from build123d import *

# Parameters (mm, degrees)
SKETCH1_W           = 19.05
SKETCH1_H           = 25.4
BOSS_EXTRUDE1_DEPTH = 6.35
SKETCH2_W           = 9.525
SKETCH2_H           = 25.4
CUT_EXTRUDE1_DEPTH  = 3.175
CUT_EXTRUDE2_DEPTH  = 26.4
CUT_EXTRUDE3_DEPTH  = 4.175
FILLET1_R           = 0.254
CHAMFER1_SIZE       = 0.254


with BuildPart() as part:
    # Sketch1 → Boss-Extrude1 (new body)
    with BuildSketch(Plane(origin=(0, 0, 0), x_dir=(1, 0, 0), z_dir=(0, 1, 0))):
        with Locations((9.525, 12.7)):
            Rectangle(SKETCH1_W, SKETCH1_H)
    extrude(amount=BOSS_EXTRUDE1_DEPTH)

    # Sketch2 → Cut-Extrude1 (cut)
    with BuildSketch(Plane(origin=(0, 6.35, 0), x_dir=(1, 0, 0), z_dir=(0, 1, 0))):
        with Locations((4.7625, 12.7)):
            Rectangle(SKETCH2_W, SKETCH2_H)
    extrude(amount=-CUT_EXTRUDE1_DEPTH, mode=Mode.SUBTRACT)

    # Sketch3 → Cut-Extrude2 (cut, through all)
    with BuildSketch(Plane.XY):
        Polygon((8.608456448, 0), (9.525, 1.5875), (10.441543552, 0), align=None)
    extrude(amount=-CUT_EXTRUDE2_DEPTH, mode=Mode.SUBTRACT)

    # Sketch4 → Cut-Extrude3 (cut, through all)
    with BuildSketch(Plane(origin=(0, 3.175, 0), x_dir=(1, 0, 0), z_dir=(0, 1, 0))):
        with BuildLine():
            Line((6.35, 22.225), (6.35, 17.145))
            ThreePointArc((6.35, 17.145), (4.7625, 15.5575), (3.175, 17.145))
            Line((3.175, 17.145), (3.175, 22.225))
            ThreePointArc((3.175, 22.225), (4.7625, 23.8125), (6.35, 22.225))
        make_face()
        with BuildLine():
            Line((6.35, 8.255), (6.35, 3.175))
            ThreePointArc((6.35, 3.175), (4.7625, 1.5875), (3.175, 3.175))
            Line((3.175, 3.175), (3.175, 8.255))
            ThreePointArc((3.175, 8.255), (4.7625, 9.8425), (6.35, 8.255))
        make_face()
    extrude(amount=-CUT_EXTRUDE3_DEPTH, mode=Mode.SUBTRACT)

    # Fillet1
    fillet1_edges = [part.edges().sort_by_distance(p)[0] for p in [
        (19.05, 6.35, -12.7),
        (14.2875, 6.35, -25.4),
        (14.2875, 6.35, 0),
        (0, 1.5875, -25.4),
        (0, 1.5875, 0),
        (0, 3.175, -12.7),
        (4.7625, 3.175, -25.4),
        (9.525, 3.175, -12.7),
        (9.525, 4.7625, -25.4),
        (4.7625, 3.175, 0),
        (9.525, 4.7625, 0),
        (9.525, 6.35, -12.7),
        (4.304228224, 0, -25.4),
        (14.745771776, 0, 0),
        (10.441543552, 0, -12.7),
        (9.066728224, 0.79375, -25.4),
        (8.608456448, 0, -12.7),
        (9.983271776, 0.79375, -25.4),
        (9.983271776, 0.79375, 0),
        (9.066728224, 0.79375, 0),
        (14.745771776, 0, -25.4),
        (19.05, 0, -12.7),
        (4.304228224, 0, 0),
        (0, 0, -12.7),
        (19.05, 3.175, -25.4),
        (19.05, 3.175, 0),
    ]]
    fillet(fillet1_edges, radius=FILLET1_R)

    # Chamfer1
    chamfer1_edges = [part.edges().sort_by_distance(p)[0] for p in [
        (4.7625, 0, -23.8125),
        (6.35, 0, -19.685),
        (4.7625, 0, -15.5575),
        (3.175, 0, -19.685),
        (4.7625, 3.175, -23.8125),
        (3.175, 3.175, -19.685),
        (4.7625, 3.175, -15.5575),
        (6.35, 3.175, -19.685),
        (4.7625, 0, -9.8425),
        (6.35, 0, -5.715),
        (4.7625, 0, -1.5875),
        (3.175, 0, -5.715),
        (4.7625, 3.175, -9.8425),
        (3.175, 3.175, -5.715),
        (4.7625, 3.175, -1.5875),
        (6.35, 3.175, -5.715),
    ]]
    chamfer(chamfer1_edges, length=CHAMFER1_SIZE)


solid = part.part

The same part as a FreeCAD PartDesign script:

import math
import FreeCAD as App
import Part
import Sketcher

V = App.Vector
Q = App.Units.Quantity


def edges_at(feature, points):
    """Names of the edges that pass closest to the given points."""
    edges = feature.Shape.Edges
    near = lambda p: min(range(len(edges)), key=lambda i: edges[i].distToShape(Part.Vertex(*p))[0])
    return sorted({f"Edge{near(p) + 1}" for p in points})

doc = App.newDocument("Part")
body = doc.addObject("PartDesign::Body", "Body")

# Sketch on XZ plane
sketch1 = body.newObject("Sketcher::SketchObject", "Sketch")
sketch1.AttachmentSupport = (doc.getObject("XZ_Plane"), [""])
sketch1.MapMode = "FlatFace"
sketch1.addGeometry(Part.LineSegment(V(0, -25, 0), V(0, 0, 0)), False)
sketch1.addGeometry(Part.LineSegment(V(0, 0, 0), V(19, 0, 0)), False)
sketch1.addGeometry(Part.LineSegment(V(19, 0, 0), V(19, -25, 0)), False)
sketch1.addGeometry(Part.LineSegment(V(19, -25, 0), V(0, -25, 0)), False)
sketch1.addConstraint(Sketcher.Constraint("Coincident", 0, 2, 1, 1))
sketch1.addConstraint(Sketcher.Constraint("Coincident", 1, 2, 2, 1))
sketch1.addConstraint(Sketcher.Constraint("Coincident", 2, 2, 3, 1))
sketch1.addConstraint(Sketcher.Constraint("Coincident", 3, 2, 0, 1))
sketch1.addConstraint(Sketcher.Constraint("Vertical", 0))
sketch1.addConstraint(Sketcher.Constraint("Horizontal", 1))
sketch1.addConstraint(Sketcher.Constraint("Vertical", 2))
sketch1.addConstraint(Sketcher.Constraint("Horizontal", 3))
sketch1.addConstraint(Sketcher.Constraint("Coincident", 0, 2, -1, 1))
sketch1.addConstraint(Sketcher.Constraint("DistanceY", 0, 1, 0, 2, Q("1 in")))
sketch1.addConstraint(Sketcher.Constraint("DistanceX", 1, 1, 1, 2, Q("0.75 in")))
pad1 = body.newObject("PartDesign::Pad", "Pad")
pad1.Profile = sketch1
pad1.Length = Q("0.25 in")
pad1.Reversed = True

# Sketch on XZ plane
sketch2 = body.newObject("Sketcher::SketchObject", "Sketch001")
sketch2.AttachmentSupport = (doc.getObject("XZ_Plane"), [""])
sketch2.MapMode = "FlatFace"
sketch2.AttachmentOffset = App.Placement(V(0, 0, -0.25 * 25.4), App.Rotation())
sketch2.addGeometry(Part.LineSegment(V(0, -25, 0), V(0, 0, 0)), False)
sketch2.addGeometry(Part.LineSegment(V(0, 0, 0), V(10, 0, 0)), False)
sketch2.addGeometry(Part.LineSegment(V(10, 0, 0), V(10, -25, 0)), False)
sketch2.addGeometry(Part.LineSegment(V(10, -25, 0), V(0, -25, 0)), False)
sketch2.addConstraint(Sketcher.Constraint("Coincident", 0, 2, 1, 1))
sketch2.addConstraint(Sketcher.Constraint("Coincident", 1, 2, 2, 1))
sketch2.addConstraint(Sketcher.Constraint("Coincident", 2, 2, 3, 1))
sketch2.addConstraint(Sketcher.Constraint("Coincident", 3, 2, 0, 1))
sketch2.addConstraint(Sketcher.Constraint("Vertical", 0))
sketch2.addConstraint(Sketcher.Constraint("Horizontal", 1))
sketch2.addConstraint(Sketcher.Constraint("Vertical", 2))
sketch2.addConstraint(Sketcher.Constraint("Horizontal", 3))
sketch2.addConstraint(Sketcher.Constraint("Coincident", 0, 2, -1, 1))
sketch2.addConstraint(Sketcher.Constraint("DistanceY", 0, 1, 0, 2, Q("1 in")))
sketch2.addConstraint(Sketcher.Constraint("DistanceX", 1, 1, 1, 2, Q("0.375 in")))
pocket1 = body.newObject("PartDesign::Pocket", "Pocket")
pocket1.Profile = sketch2
pocket1.Length = Q("0.125 in")
pocket1.Reversed = True

# Sketch on XY plane
sketch3 = body.newObject("Sketcher::SketchObject", "Sketch002")
sketch3.AttachmentSupport = (doc.getObject("XY_Plane"), [""])
sketch3.MapMode = "FlatFace"
sketch3.addGeometry(Part.LineSegment(V(9.5, 1.6, 0), V(8.6, 0, 0)), False)
sketch3.addGeometry(Part.LineSegment(V(8.6, 0, 0), V(10.4, 0, 0)), False)
sketch3.addGeometry(Part.LineSegment(V(10.4, 0, 0), V(9.5, 1.6, 0)), False)
sketch3.addConstraint(Sketcher.Constraint("Coincident", 0, 2, 1, 1))
sketch3.addConstraint(Sketcher.Constraint("Coincident", 1, 2, 2, 1))
sketch3.addConstraint(Sketcher.Constraint("Coincident", 2, 2, 0, 1))
sketch3.addConstraint(Sketcher.Constraint("Horizontal", 1))
sketch3.addConstraint(Sketcher.Constraint("PointOnObject", 0, 2, -1))
sketch3.addConstraint(Sketcher.Constraint("Equal", 0, 2))
sketch3.addConstraint(Sketcher.Constraint("Angle", 0, Q("-120 deg")))
sketch3.addConstraint(Sketcher.Constraint("DistanceX", -1, 1, 2, 2, Q("0.375 in")))
sketch3.addConstraint(Sketcher.Constraint("DistanceY", -1, 1, 2, 2, Q("0.0625 in")))
pocket2 = body.newObject("PartDesign::Pocket", "Pocket001")
pocket2.Profile = sketch3
pocket2.Type = "ThroughAll"

# Sketch on XZ plane
sketch4 = body.newObject("Sketcher::SketchObject", "Sketch003")
sketch4.AttachmentSupport = (doc.getObject("XZ_Plane"), [""])
sketch4.MapMode = "FlatFace"
sketch4.AttachmentOffset = App.Placement(V(0, 0, -0.125 * 25.4), App.Rotation())
sketch4.addGeometry(Part.LineSegment(V(6.3, -17.1, 0), V(6.3, -22.2, 0)), False)
sketch4.addGeometry(Part.ArcOfCircle(Part.Circle(V(4.8, -22.2, 0), V(0, 0, 1), 1.6), math.radians(180), math.radians(360)), False)
sketch4.addGeometry(Part.LineSegment(V(3.2, -22.2, 0), V(3.2, -17.1, 0)), False)
sketch4.addGeometry(Part.ArcOfCircle(Part.Circle(V(4.8, -17.1, 0), V(0, 0, 1), 1.6), math.radians(0), math.radians(180)), False)
sketch4.addGeometry(Part.LineSegment(V(6.3, -3.2, 0), V(6.3, -8.3, 0)), False)
sketch4.addGeometry(Part.ArcOfCircle(Part.Circle(V(4.8, -8.3, 0), V(0, 0, 1), 1.6), math.radians(180), math.radians(360)), False)
sketch4.addGeometry(Part.LineSegment(V(3.2, -8.3, 0), V(3.2, -3.2, 0)), False)
sketch4.addGeometry(Part.ArcOfCircle(Part.Circle(V(4.8, -3.2, 0), V(0, 0, 1), 1.6), math.radians(0), math.radians(180)), False)
sketch4.addConstraint(Sketcher.Constraint("Tangent", 0, 2, 1, 2))
sketch4.addConstraint(Sketcher.Constraint("Tangent", 1, 1, 2, 1))
sketch4.addConstraint(Sketcher.Constraint("Tangent", 2, 2, 3, 2))
sketch4.addConstraint(Sketcher.Constraint("Tangent", 3, 1, 0, 1))
sketch4.addConstraint(Sketcher.Constraint("Tangent", 4, 2, 5, 2))
sketch4.addConstraint(Sketcher.Constraint("Tangent", 5, 1, 6, 1))
sketch4.addConstraint(Sketcher.Constraint("Tangent", 6, 2, 7, 2))
sketch4.addConstraint(Sketcher.Constraint("Tangent", 7, 1, 4, 1))
sketch4.addConstraint(Sketcher.Constraint("Vertical", 0))
sketch4.addConstraint(Sketcher.Constraint("Vertical", 2))
sketch4.addConstraint(Sketcher.Constraint("Vertical", 4))
sketch4.addConstraint(Sketcher.Constraint("Vertical", 6))
sketch4.addConstraint(Sketcher.Constraint("Equal", 3, 5))
sketch4.addConstraint(Sketcher.Constraint("Vertical", 3, 3, 5, 3))
sketch4.addConstraint(Sketcher.Constraint("Equal", 2, 4))
sketch4.addConstraint(Sketcher.Constraint("DistanceY", 0, 2, 0, 1, Q("0.2 in")))
sketch4.addConstraint(Sketcher.Constraint("Radius", 1, Q("0.0625 in")))
sketch4.addConstraint(Sketcher.Constraint("DistanceX", -1, 1, 0, 2, Q("0.25 in")))
sketch4.addConstraint(Sketcher.Constraint("DistanceY", 3, 3, 5, 3, Q("0.35 in")))
sketch4.addConstraint(Sketcher.Constraint("DistanceY", 1, 3, -1, 1, Q("0.875 in")))
pocket3 = body.newObject("PartDesign::Pocket", "Pocket002")
pocket3.Profile = sketch4
pocket3.Type = "ThroughAll"
pocket3.Reversed = True
doc.recompute()

fillet = body.newObject("PartDesign::Fillet", "Fillet")
fillet.Base = (pocket3, edges_at(pocket3, [
    (19.05, 6.35, -12.7),
    (14.287, 6.35, -25.4),
    (14.287, 6.35, 0),
    (0, 1.587, -25.4),
    (0, 1.587, 0),
    (0, 3.175, -12.7),
    (4.763, 3.175, -25.4),
    (9.525, 3.175, -12.7),
    (9.525, 4.763, -25.4),
    (4.763, 3.175, 0),
    (9.525, 4.763, 0),
    (9.525, 6.35, -12.7),
    (4.304, 0, -25.4),
    (14.746, 0, 0),
    (10.442, 0, -12.7),
    (9.067, 0.794, -25.4),
    (8.608, 0, -12.7),
    (9.983, 0.794, -25.4),
    (9.983, 0.794, 0),
    (9.067, 0.794, 0),
    (14.746, 0, -25.4),
    (19.05, 0, -12.7),
    (4.304, 0, 0),
    (0, 0, -12.7),
    (19.05, 3.175, -25.4),
    (19.05, 3.175, 0),
]))
fillet.Radius = Q("0.01 in")
doc.recompute()

chamfer = body.newObject("PartDesign::Chamfer", "Chamfer")
chamfer.Base = (fillet, edges_at(fillet, [
    (4.763, 0, -23.812),
    (6.35, 0, -19.685),
    (4.763, 0, -15.557),
    (3.175, 0, -19.685),
    (4.763, 3.175, -23.812),
    (3.175, 3.175, -19.685),
    (4.763, 3.175, -15.557),
    (6.35, 3.175, -19.685),
    (4.763, 0, -9.842),
    (6.35, 0, -5.715),
    (4.763, 0, -1.587),
    (3.175, 0, -5.715),
    (4.763, 3.175, -9.842),
    (3.175, 3.175, -5.715),
    (4.763, 3.175, -1.587),
    (6.35, 3.175, -5.715),
]))
chamfer.Size = Q("0.01 in")

doc.recompute()
